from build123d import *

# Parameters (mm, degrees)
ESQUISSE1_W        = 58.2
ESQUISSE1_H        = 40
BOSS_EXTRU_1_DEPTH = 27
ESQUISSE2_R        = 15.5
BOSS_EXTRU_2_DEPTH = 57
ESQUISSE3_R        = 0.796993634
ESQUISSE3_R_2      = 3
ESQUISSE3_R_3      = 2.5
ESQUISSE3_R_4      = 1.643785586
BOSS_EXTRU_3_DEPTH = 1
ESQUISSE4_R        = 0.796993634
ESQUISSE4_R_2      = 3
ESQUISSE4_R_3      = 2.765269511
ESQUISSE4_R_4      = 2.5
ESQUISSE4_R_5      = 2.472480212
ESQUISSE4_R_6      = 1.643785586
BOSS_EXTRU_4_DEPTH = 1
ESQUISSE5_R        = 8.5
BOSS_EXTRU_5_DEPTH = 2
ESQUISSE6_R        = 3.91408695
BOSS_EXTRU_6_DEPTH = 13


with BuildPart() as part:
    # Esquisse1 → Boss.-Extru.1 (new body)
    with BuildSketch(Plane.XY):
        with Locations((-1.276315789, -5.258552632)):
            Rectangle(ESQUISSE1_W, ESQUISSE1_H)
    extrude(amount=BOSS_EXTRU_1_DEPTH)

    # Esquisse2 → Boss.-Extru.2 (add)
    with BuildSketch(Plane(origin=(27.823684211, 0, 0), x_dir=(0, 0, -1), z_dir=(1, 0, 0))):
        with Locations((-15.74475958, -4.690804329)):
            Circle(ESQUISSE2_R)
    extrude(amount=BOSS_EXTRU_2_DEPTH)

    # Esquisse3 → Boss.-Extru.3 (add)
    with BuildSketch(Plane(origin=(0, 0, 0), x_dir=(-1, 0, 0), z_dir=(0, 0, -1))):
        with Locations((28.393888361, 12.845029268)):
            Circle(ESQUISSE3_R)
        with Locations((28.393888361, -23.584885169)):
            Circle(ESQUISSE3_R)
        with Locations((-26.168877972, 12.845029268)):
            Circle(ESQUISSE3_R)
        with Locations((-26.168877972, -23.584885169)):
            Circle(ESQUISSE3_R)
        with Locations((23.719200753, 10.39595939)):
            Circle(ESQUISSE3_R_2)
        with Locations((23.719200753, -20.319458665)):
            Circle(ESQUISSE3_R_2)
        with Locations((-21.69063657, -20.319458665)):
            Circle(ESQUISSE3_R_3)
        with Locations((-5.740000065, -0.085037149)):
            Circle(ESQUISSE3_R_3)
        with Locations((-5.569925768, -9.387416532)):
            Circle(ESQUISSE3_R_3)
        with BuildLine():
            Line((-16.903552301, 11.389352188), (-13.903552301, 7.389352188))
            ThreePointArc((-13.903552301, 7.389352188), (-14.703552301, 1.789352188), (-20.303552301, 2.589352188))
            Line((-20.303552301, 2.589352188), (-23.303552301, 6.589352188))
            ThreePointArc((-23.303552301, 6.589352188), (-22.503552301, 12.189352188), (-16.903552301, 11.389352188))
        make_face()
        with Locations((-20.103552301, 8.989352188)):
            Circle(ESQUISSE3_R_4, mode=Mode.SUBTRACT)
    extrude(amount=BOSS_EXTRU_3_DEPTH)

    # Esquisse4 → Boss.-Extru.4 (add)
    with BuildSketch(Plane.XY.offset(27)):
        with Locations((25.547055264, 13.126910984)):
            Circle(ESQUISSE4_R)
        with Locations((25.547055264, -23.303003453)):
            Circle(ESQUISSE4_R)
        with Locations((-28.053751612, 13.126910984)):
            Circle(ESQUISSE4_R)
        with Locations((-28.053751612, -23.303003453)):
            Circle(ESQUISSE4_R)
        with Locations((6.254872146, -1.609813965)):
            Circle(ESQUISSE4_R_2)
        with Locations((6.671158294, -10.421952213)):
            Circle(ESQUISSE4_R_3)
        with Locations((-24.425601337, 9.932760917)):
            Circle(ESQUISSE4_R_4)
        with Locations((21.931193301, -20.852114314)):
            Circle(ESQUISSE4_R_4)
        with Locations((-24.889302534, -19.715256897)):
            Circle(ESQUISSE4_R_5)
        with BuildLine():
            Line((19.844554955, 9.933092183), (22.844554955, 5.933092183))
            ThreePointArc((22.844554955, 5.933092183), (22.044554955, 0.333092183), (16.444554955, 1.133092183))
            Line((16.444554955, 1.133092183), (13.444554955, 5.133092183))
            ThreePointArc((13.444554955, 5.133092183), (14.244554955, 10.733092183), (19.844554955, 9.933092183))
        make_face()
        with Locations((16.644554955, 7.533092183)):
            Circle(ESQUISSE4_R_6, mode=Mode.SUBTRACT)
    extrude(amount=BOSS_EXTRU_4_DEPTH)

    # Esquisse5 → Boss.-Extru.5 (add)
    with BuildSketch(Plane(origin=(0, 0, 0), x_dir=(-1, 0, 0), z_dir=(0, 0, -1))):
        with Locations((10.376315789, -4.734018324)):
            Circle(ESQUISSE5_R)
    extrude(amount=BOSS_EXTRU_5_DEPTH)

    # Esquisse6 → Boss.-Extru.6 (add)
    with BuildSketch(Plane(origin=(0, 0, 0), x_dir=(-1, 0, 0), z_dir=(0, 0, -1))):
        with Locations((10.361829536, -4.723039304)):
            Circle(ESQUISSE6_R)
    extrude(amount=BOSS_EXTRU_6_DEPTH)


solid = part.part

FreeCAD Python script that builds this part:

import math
import FreeCAD as App
import Part
import Sketcher

V = App.Vector

doc = App.newDocument("Part")
params = doc.addObject("Spreadsheet::Sheet", "Params")
for row, (alias, value) in enumerate([
    ("sketch1_height", "40 mm"),
    ("sketch1_width", "58.2 mm"),
    ("pad1_length", "27 mm"),
    ("sketch2_diameter", "31 mm"),
    ("pad2_length", "57 mm"),
    ("sketch3_diameter", "6 mm"),
    ("sketch3_diameter2", "5 mm"),
    ("sketch3_radius", "4 mm"),
    ("sketch3_length", "5 mm"),
    ("pad3_length", "1 mm"),
    ("sketch4_diameter", "6 mm"),
    ("sketch4_diameter2", "5 mm"),
    ("sketch4_radius", "4 mm"),
    ("sketch4_length", "5 mm"),
    ("pad4_length", "1 mm"),
    ("sketch5_diameter", "17 mm"),
    ("pad5_length", "2 mm"),
    ("pad6_length", "13 mm"),
], start=1):
    params.set(f"A{row}", alias)
    params.set(f"B{row}", "=" + value)
    params.setAlias(f"B{row}", alias)

body = doc.addObject("PartDesign::Body", "Body")

# Sketch on XY plane
sketch1 = body.newObject("Sketcher::SketchObject", "Sketch")
sketch1.AttachmentSupport = (doc.getObject("XY_Plane"), [""])
sketch1.MapMode = "FlatFace"
sketch1.addGeometry([
    Part.LineSegment(V(-30, 15, 0), V(-30, -25, 0)),
    Part.LineSegment(V(-30, -25, 0), V(28, -25, 0)),
    Part.LineSegment(V(28, -25, 0), V(28, 15, 0)),
    Part.LineSegment(V(28, 15, 0), V(-30, 15, 0)),
], False)
sketch1.addConstraint([
    Sketcher.Constraint("Coincident", 0, 2, 1, 1),
    Sketcher.Constraint("Coincident", 1, 2, 2, 1),
    Sketcher.Constraint("Coincident", 2, 2, 3, 1),
    Sketcher.Constraint("Coincident", 3, 2, 0, 1),
    Sketcher.Constraint("Vertical", 0),
    Sketcher.Constraint("Horizontal", 1),
    Sketcher.Constraint("Vertical", 2),
    Sketcher.Constraint("Horizontal", 3),
    Sketcher.Constraint("DistanceY", 0, 2, 0, 1, 40.0),
    Sketcher.Constraint("DistanceX", 1, 1, 1, 2, 58.2),
    Sketcher.Constraint("DistanceX", 0, 2, -1, 1, 30.376316),
    Sketcher.Constraint("DistanceY", 0, 2, -1, 1, 25.258553),
])
sketch1.setExpression("Constraints[8]", "Params.sketch1_height")
sketch1.setExpression("Constraints[9]", "Params.sketch1_width")
pad1 = body.newObject("PartDesign::Pad", "Pad")
pad1.Profile = sketch1
pad1.setExpression("Length", "Params.pad1_length")

# Sketch on YZ plane
sketch2 = body.newObject("Sketcher::SketchObject", "Sketch001")
sketch2.AttachmentSupport = (doc.getObject("YZ_Plane"), [""])
sketch2.MapMode = "FlatFace"
sketch2.AttachmentOffset = App.Placement(V(0, 0, 27.823684), App.Rotation())
sketch2.addGeometry(Part.Circle(V(-5, 16, 0), V(0, 0, 1), 16), False)
sketch2.addConstraint([
    Sketcher.Constraint("Diameter", 0, 31.0),
    Sketcher.Constraint("DistanceY", -1, 1, 0, 3, 15.74476),
    Sketcher.Constraint("DistanceX", 0, 3, -1, 1, 4.690804),
])
sketch2.setExpression("Constraints[0]", "Params.sketch2_diameter")
pad2 = body.newObject("PartDesign::Pad", "Pad001")
pad2.Profile = sketch2
pad2.setExpression("Length", "Params.pad2_length")

# Sketch on XY plane
sketch3 = body.newObject("Sketcher::SketchObject", "Sketch002")
sketch3.AttachmentSupport = (doc.getObject("XY_Plane"), [""])
sketch3.MapMode = "FlatFace"
sketch3.addGeometry([
    Part.Circle(V(-28.4, 12.8, 0), V(0, 0, 1), 0.8),  # 0
    Part.Circle(V(-28.4, -23.6, 0), V(0, 0, 1), 0.8),  # 1
    Part.Circle(V(26.2, 12.8, 0), V(0, 0, 1), 0.8),  # 2
    Part.Circle(V(26.2, -23.6, 0), V(0, 0, 1), 0.8),  # 3
    Part.Circle(V(-23.7, 10.4, 0), V(0, 0, 1), 3),  # 4
    Part.Circle(V(-23.7, -20.3, 0), V(0, 0, 1), 3),  # 5
    Part.Circle(V(21.7, -20.3, 0), V(0, 0, 1), 2.5),  # 6
    Part.Circle(V(5.7, -0.1, 0), V(0, 0, 1), 2.5),  # 7
    Part.Circle(V(5.6, -9.4, 0), V(0, 0, 1), 2.5),  # 8
    Part.LineSegment(V(13.9, 7.4, 0), V(16.9, 11.4, 0)),  # 9
    Part.ArcOfCircle(Part.Circle(V(20.1, 9, 0), V(0, 0, 1), 4), math.radians(-37), math.radians(143)),  # 10
    Part.LineSegment(V(23.3, 6.6, 0), V(20.3, 2.6, 0)),  # 11
    Part.ArcOfCircle(Part.Circle(V(17.1, 5, 0), V(0, 0, 1), 4), math.radians(143), math.radians(323)),  # 12
    Part.Circle(V(20.1, 9, 0), V(0, 0, 1), 1.6),  # 13
], False)
sketch3.addConstraint([
    Sketcher.Constraint("Tangent", 9, 2, 10, 2),
    Sketcher.Constraint("Tangent", 10, 1, 11, 1),
    Sketcher.Constraint("Tangent", 11, 2, 12, 2),
    Sketcher.Constraint("Tangent", 12, 1, 9, 1),
    Sketcher.Constraint("Coincident", 13, 3, 10, 3),
    Sketcher.Constraint("Equal", 0, 1),
    Sketcher.Constraint("Equal", 1, 2),
    Sketcher.Constraint("Equal", 2, 3),
    Sketcher.Constraint("Equal", 4, 5),
    Sketcher.Constraint("Equal", 6, 7),
    Sketcher.Constraint("Equal", 7, 8),
    Sketcher.Constraint("Equal", 10, 12),
    Sketcher.Constraint("Horizontal", 0, 3, 2, 3),
    Sketcher.Constraint("Horizontal", 1, 3, 3, 3),
    Sketcher.Constraint("Horizontal", 5, 3, 6, 3),
    Sketcher.Constraint("Vertical", 0, 3, 1, 3),
    Sketcher.Constraint("Vertical", 2, 3, 3, 3),
    Sketcher.Constraint("Vertical", 4, 3, 5, 3),
    Sketcher.Constraint("Diameter", 4, 6.0),
    Sketcher.Constraint("Diameter", 6, 5.0),
    Sketcher.Constraint("Radius", 10, 4.0),
    Sketcher.Constraint("Distance", 9, 5.0),
    Sketcher.Constraint("DistanceX", 12, 3, 10, 3, 3.0),
    Sketcher.Constraint("Diameter", 13, 3.287571),
    Sketcher.Constraint("DistanceX", -1, 1, 7, 3, 5.74),
    Sketcher.Constraint("Diameter", 0, 1.593987),
    Sketcher.Constraint("DistanceX", 4, 3, -1, 1, 23.719201),
    Sketcher.Constraint("DistanceX", 0, 3, -1, 1, 28.393888),
    Sketcher.Constraint("DistanceY", -1, 1, 0, 3, 12.845029),
    Sketcher.Constraint("DistanceY", -1, 1, 4, 3, 10.395959),
    Sketcher.Constraint("DistanceY", 5, 3, -1, 1, 20.319459),
    Sketcher.Constraint("DistanceX", 4, 3, 2, 3, 49.888079),
    Sketcher.Constraint("DistanceX", 6, 3, 3, 3, 4.478241),
    Sketcher.Constraint("DistanceY", 6, 3, 7, 3, 20.234422),
    Sketcher.Constraint("DistanceY", 3, 3, 7, 3, 23.499848),
    Sketcher.Constraint("DistanceY", 8, 3, 7, 3, 9.302379),
    Sketcher.Constraint("DistanceX", 8, 3, 6, 3, 16.120711),
    Sketcher.Constraint("DistanceY", 7, 3, 10, 3, 9.074389),
    Sketcher.Constraint("DistanceX", -1, 1, 10, 3, 20.103552),
])
sketch3.setExpression("Constraints[18]", "Params.sketch3_diameter")
sketch3.setExpression("Constraints[19]", "Params.sketch3_diameter2")
sketch3.setExpression("Constraints[20]", "Params.sketch3_radius")
sketch3.setExpression("Constraints[21]", "Params.sketch3_length")
pad3 = body.newObject("PartDesign::Pad", "Pad002")
pad3.Profile = sketch3
pad3.setExpression("Length", "Params.pad3_length")
pad3.Reversed = True

# Sketch on XY plane
sketch4 = body.newObject("Sketcher::SketchObject", "Sketch003")
sketch4.AttachmentSupport = (doc.getObject("XY_Plane"), [""])
sketch4.MapMode = "FlatFace"
sketch4.AttachmentOffset = App.Placement(V(0, 0, 27), App.Rotation())
sketch4.addGeometry([
    Part.Circle(V(25.5, 13.1, 0), V(0, 0, 1), 0.8),  # 0
    Part.Circle(V(25.5, -23.3, 0), V(0, 0, 1), 0.8),  # 1
    Part.Circle(V(-28.1, 13.1, 0), V(0, 0, 1), 0.8),  # 2
    Part.Circle(V(-28.1, -23.3, 0), V(0, 0, 1), 0.8),  # 3
    Part.Circle(V(6.3, -1.6, 0), V(0, 0, 1), 3),  # 4
    Part.Circle(V(6.7, -10.4, 0), V(0, 0, 1), 2.8),  # 5
    Part.Circle(V(-24.4, 9.9, 0), V(0, 0, 1), 2.5),  # 6
    Part.Circle(V(21.9, -20.9, 0), V(0, 0, 1), 2.5),  # 7
    Part.Circle(V(-24.9, -19.7, 0), V(0, 0, 1), 2.5),  # 8
    Part.LineSegment(V(22.8, 5.9, 0), V(19.8, 9.9, 0)),  # 9
    Part.ArcOfCircle(Part.Circle(V(16.6, 7.5, 0), V(0, 0, 1), 4), math.radians(37), math.radians(217)),  # 10
    Part.LineSegment(V(13.4, 5.1, 0), V(16.4, 1.1, 0)),  # 11
    Part.ArcOfCircle(Part.Circle(V(19.6, 3.5, 0), V(0, 0, 1), 4), math.radians(-143), math.radians(37)),  # 12
    Part.Circle(V(16.6, 7.5, 0), V(0, 0, 1), 1.6),  # 13
], False)
sketch4.addConstraint([
    Sketcher.Constraint("Tangent", 9, 2, 10, 1),
    Sketcher.Constraint("Tangent", 10, 2, 11, 1),
    Sketcher.Constraint("Tangent", 11, 2, 12, 1),
    Sketcher.Constraint("Tangent", 12, 2, 9, 1),
    Sketcher.Constraint("Coincident", 13, 3, 10, 3),
    Sketcher.Constraint("Equal", 0, 1),
    Sketcher.Constraint("Equal", 1, 2),
    Sketcher.Constraint("Equal", 2, 3),
    Sketcher.Constraint("Equal", 6, 7),
    Sketcher.Constraint("Equal", 10, 12),
    Sketcher.Constraint("Horizontal", 0, 3, 2, 3),
    Sketcher.Constraint("Horizontal", 1, 3, 3, 3),
    Sketcher.Constraint("Vertical", 0, 3, 1, 3),
    Sketcher.Constraint("Vertical", 2, 3, 3, 3),
    Sketcher.Constraint("Diameter", 4, 6.0),
    Sketcher.Constraint("Diameter", 6, 5.0),
    Sketcher.Constraint("Radius", 10, 4.0),
    Sketcher.Constraint("Distance", 9, 5.0),
    Sketcher.Constraint("DistanceX", 10, 3, 12, 3, 3.0),
    Sketcher.Constraint("Diameter", 5, 5.530539),
    Sketcher.Constraint("Diameter", 8, 4.94496),
    Sketcher.Constraint("Diameter", 13, 3.287571),
    Sketcher.Constraint("Diameter", 0, 1.593987),
    Sketcher.Constraint("DistanceX", 6, 3, -1, 1, 24.425601),
    Sketcher.Constraint("DistanceY", 7, 3, 4, 3, 19.2423),
    Sketcher.Constraint("DistanceX", 8, 3, 6, 3, 0.463701),
    Sketcher.Constraint("DistanceX", 10, 3, 0, 3, 8.9025),
    Sketcher.Constraint("DistanceY", -1, 1, 0, 3, 13.126911),
    Sketcher.Constraint("DistanceX", 2, 3, -1, 1, 28.053752),
    Sketcher.Constraint("DistanceX", -1, 1, 5, 3, 6.671158),
    Sketcher.Constraint("DistanceY", -1, 1, 6, 3, 9.932761),
    Sketcher.Constraint("DistanceY", 1, 3, 4, 3, 21.693189),
    Sketcher.Constraint("DistanceY", 5, 3, 4, 3, 8.812138),
    Sketcher.Constraint("DistanceX", 7, 3, 1, 3, 3.615862),
    Sketcher.Constraint("DistanceX", 4, 3, 7, 3, 15.676321),
    Sketcher.Constraint("DistanceY", 10, 3, 0, 3, 5.593819),
    Sketcher.Constraint("DistanceX", -1, 1, 0, 3, 25.547055),
    Sketcher.Constraint("DistanceY", 1, 3, -1, 1, 23.303003),
    Sketcher.Constraint("DistanceY", 8, 3, -1, 1, 19.715257),
])
sketch4.setExpression("Constraints[14]", "Params.sketch4_diameter")
sketch4.setExpression("Constraints[15]", "Params.sketch4_diameter2")
sketch4.setExpression("Constraints[16]", "Params.sketch4_radius")
sketch4.setExpression("Constraints[17]", "Params.sketch4_length")
pad4 = body.newObject("PartDesign::Pad", "Pad003")
pad4.Profile = sketch4
pad4.setExpression("Length", "Params.pad4_length")

# Sketch on XY plane
sketch5 = body.newObject("Sketcher::SketchObject", "Sketch004")
sketch5.AttachmentSupport = (doc.getObject("XY_Plane"), [""])
sketch5.MapMode = "FlatFace"
sketch5.addGeometry(Part.Circle(V(-10, -5, 0), V(0, 0, 1), 8), False)
sketch5.addConstraint([
    Sketcher.Constraint("Diameter", 0, 17.0),
    Sketcher.Constraint("DistanceY", 0, 3, -1, 1, 4.734018),
    Sketcher.Constraint("DistanceX", 0, 3, -1, 1, 10.376316),
])
sketch5.setExpression("Constraints[0]", "Params.sketch5_diameter")
pad5 = body.newObject("PartDesign::Pad", "Pad004")
pad5.Profile = sketch5
pad5.setExpression("Length", "Params.pad5_length")
pad5.Reversed = True

# Sketch on XY plane
sketch6 = body.newObject("Sketcher::SketchObject", "Sketch005")
sketch6.AttachmentSupport = (doc.getObject("XY_Plane"), [""])
sketch6.MapMode = "FlatFace"
sketch6.addGeometry(Part.Circle(V(-10.4, -4.7, 0), V(0, 0, 1), 3.9), False)
sketch6.addConstraint([
    Sketcher.Constraint("Diameter", 0, 7.828174),
    Sketcher.Constraint("DistanceX", 0, 3, -1, 1, 10.36183),
    Sketcher.Constraint("DistanceY", 0, 3, -1, 1, 4.723039),
])
pad6 = body.newObject("PartDesign::Pad", "Pad005")
pad6.Profile = sketch6
pad6.setExpression("Length", "Params.pad6_length")
pad6.Reversed = True

doc.recompute()
